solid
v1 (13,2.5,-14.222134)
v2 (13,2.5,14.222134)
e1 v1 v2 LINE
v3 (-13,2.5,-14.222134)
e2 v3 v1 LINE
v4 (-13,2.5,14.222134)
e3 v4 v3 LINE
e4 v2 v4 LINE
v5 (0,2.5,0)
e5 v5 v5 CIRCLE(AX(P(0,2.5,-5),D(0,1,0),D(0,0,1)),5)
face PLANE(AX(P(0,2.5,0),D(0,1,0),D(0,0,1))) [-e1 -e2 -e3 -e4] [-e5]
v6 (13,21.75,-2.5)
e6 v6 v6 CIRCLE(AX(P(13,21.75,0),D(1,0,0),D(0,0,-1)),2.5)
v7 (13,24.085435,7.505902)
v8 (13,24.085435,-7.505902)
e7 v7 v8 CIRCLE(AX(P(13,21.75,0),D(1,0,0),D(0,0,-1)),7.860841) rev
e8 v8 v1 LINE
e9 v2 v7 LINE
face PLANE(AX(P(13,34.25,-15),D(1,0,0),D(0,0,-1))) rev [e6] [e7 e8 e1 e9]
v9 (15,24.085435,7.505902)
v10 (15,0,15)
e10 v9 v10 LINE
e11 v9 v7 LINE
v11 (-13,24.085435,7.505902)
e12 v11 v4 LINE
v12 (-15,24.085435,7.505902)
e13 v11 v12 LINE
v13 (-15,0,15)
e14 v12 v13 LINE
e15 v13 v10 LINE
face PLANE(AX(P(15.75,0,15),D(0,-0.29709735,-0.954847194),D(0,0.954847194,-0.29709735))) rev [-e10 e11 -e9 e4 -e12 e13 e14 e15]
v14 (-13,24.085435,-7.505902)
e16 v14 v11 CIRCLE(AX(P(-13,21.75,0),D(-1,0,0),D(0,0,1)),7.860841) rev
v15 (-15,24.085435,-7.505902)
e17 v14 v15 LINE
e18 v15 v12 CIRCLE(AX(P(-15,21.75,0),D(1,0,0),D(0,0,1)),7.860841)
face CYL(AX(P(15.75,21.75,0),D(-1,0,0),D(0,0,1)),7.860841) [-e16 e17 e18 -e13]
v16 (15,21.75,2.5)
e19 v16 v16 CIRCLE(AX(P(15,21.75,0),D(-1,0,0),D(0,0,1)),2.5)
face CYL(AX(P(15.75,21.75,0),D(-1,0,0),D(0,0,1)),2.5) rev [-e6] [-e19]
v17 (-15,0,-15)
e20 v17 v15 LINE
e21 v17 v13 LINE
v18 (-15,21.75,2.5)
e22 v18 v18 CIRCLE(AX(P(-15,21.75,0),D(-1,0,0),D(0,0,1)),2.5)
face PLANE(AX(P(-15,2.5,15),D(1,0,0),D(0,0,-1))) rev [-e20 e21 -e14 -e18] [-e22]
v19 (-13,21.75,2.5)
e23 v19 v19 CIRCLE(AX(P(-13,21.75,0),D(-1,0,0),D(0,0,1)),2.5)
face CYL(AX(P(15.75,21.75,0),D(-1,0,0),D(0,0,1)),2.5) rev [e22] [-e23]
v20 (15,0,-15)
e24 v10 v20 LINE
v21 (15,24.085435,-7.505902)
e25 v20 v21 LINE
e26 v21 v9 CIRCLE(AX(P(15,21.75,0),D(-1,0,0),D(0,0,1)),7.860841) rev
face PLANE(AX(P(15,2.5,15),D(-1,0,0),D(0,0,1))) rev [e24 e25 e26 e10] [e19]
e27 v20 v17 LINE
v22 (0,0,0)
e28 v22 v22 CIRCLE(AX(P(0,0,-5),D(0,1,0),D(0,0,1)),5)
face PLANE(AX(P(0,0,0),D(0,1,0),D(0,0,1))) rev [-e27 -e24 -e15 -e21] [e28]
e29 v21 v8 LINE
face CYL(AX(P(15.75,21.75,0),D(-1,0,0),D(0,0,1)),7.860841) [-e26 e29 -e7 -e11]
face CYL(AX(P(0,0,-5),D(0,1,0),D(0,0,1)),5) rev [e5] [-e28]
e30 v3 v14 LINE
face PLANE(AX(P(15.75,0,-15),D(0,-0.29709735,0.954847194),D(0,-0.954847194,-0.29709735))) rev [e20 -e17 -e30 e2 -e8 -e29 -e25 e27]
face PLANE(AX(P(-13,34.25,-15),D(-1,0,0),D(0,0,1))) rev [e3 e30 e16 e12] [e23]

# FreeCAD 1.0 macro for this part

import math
import FreeCAD as App
import Part
import Sketcher
from FreeCAD import Vector

doc = App.newDocument("Part")
body = doc.addObject("PartDesign::Body", "Body")

# Sketch on XZ plane
sketch1 = body.newObject("Sketcher::SketchObject", "Sketch")
sketch1.AttachmentSupport = (doc.getObject("XZ_Plane"), [""])
sketch1.MapMode = "FlatFace"
sketch1.addGeometry(Part.LineSegment(Vector(-15, -15, 0), Vector(-15, 15, 0)), False)
sketch1.addGeometry(Part.LineSegment(Vector(-15, 15, 0), Vector(15, 15, 0)), False)
sketch1.addGeometry(Part.LineSegment(Vector(15, 15, 0), Vector(15, -15, 0)), False)
sketch1.addGeometry(Part.LineSegment(Vector(15, -15, 0), Vector(-15, -15, 0)), False)
sketch1.addConstraint(Sketcher.Constraint("Coincident", 0, 2, 1, 1))
sketch1.addConstraint(Sketcher.Constraint("Coincident", 1, 2, 2, 1))
sketch1.addConstraint(Sketcher.Constraint("Coincident", 2, 2, 3, 1))
sketch1.addConstraint(Sketcher.Constraint("Coincident", 3, 2, 0, 1))
sketch1.addConstraint(Sketcher.Constraint("Vertical", 0))
sketch1.addConstraint(Sketcher.Constraint("Horizontal", 1))
sketch1.addConstraint(Sketcher.Constraint("Vertical", 2))
sketch1.addConstraint(Sketcher.Constraint("Horizontal", 3))
sketch1.addConstraint(Sketcher.Constraint("Symmetric", 0, 2, 2, 2, -1, 1))
sketch1.addConstraint(Sketcher.Constraint("Equal", 3, 0))
sketch1.addConstraint(Sketcher.Constraint("DistanceX", 1, 1, 1, 2, 30.0))
pad1 = body.newObject("PartDesign::Pad", "Pad")
pad1.Profile = sketch1
pad1.Length = 2.5
pad1.Reversed = True

# Sketch on XZ plane
sketch2 = body.newObject("Sketcher::SketchObject", "Sketch001")
sketch2.AttachmentSupport = (doc.getObject("XZ_Plane"), [""])
sketch2.MapMode = "FlatFace"
sketch2.AttachmentOffset = App.Placement(Vector(0, 0, -2.5), App.Rotation())
sketch2.addGeometry(Part.Circle(Vector(0, -5, 0), Vector(0, 0, 1), 5), False)
sketch2.addConstraint(Sketcher.Constraint("PointOnObject", 0, 3, -2))
sketch2.addConstraint(Sketcher.Constraint("Diameter", 0, 10.0))
sketch2.addConstraint(Sketcher.Constraint("DistanceY", 0, 3, -1, 1, 5.0))
pocket1 = body.newObject("PartDesign::Pocket", "Pocket")
pocket1.Profile = sketch2
pocket1.Length = 2.5
pocket1.Reversed = True

# Sketch on XZ plane
sketch3 = body.newObject("Sketcher::SketchObject", "Sketch002")
sketch3.AttachmentSupport = (doc.getObject("XZ_Plane"), [""])
sketch3.MapMode = "FlatFace"
sketch3.AttachmentOffset = App.Placement(Vector(0, 0, -2.5), App.Rotation())
sketch3.addGeometry(Part.LineSegment(Vector(-15, -15, 0), Vector(-15, 15, 0)), False)
sketch3.addGeometry(Part.LineSegment(Vector(-15, 15, 0), Vector(-13, 15, 0)), False)
sketch3.addGeometry(Part.LineSegment(Vector(-13, 15, 0), Vector(-13, -15, 0)), False)
sketch3.addGeometry(Part.LineSegment(Vector(-13, -15, 0), Vector(-15, -15, 0)), False)
sketch3.addGeometry(Part.LineSegment(Vector(13, -15, 0), Vector(13, 15, 0)), False)
sketch3.addGeometry(Part.LineSegment(Vector(13, 15, 0), Vector(15, 15, 0)), False)
sketch3.addGeometry(Part.LineSegment(Vector(15, 15, 0), Vector(15, -15, 0)), False)
sketch3.addGeometry(Part.LineSegment(Vector(15, -15, 0), Vector(13, -15, 0)), False)
sketch3.addConstraint(Sketcher.Constraint("Coincident", 0, 2, 1, 1))
sketch3.addConstraint(Sketcher.Constraint("Coincident", 1, 2, 2, 1))
sketch3.addConstraint(Sketcher.Constraint("Coincident", 2, 2, 3, 1))
sketch3.addConstraint(Sketcher.Constraint("Coincident", 3, 2, 0, 1))
sketch3.addConstraint(Sketcher.Constraint("Coincident", 4, 2, 5, 1))
sketch3.addConstraint(Sketcher.Constraint("Coincident", 5, 2, 6, 1))
sketch3.addConstraint(Sketcher.Constraint("Coincident", 6, 2, 7, 1))
sketch3.addConstraint(Sketcher.Constraint("Coincident", 7, 2, 4, 1))
sketch3.addConstraint(Sketcher.Constraint("Vertical", 0))
sketch3.addConstraint(Sketcher.Constraint("Horizontal", 1))
sketch3.addConstraint(Sketcher.Constraint("Vertical", 2))
sketch3.addConstraint(Sketcher.Constraint("Horizontal", 3))
sketch3.addConstraint(Sketcher.Constraint("Vertical", 4))
sketch3.addConstraint(Sketcher.Constraint("Horizontal", 5))
sketch3.addConstraint(Sketcher.Constraint("Vertical", 6))
sketch3.addConstraint(Sketcher.Constraint("Horizontal", 7))
sketch3.addConstraint(Sketcher.Constraint("Symmetric", 2, 2, 4, 2, -1, 1))
sketch3.addConstraint(Sketcher.Constraint("Symmetric", 0, 2, 6, 2, -1, 1))
sketch3.addConstraint(Sketcher.Constraint("Horizontal", 1, 2, 4, 2))
sketch3.addConstraint(Sketcher.Constraint("DistanceX", 1, 1, 1, 2, 2.0))
sketch3.addConstraint(Sketcher.Constraint("DistanceY", 0, 1, 0, 2, 30.0))
sketch3.addConstraint(Sketcher.Constraint("DistanceX", 0, 2, -1, 1, 15.0))
pad2 = body.newObject("PartDesign::Pad", "Pad001")
pad2.Profile = sketch3
pad2.Length = 31.75
pad2.Reversed = True

# Sketch on YZ plane
sketch4 = body.newObject("Sketcher::SketchObject", "Sketch003")
sketch4.AttachmentSupport = (doc.getObject("YZ_Plane"), [""])
sketch4.MapMode = "FlatFace"
sketch4.AttachmentOffset = App.Placement(Vector(0, 0, -15), App.Rotation())
sketch4.addGeometry(Part.Circle(Vector(21.8, 0, 0), Vector(0, 0, 1), 2.5), False)
sketch4.addConstraint(Sketcher.Constraint("PointOnObject", 0, 3, -1))
sketch4.addConstraint(Sketcher.Constraint("Diameter", 0, 5.0))
sketch4.addConstraint(Sketcher.Constraint("DistanceX", -1, 1, 0, 3, 21.75))
pocket2 = body.newObject("PartDesign::Pocket", "Pocket001")
pocket2.Profile = sketch4
pocket2.Length = 30.75
pocket2.Reversed = True

# Sketch on YZ plane
sketch5 = body.newObject("Sketcher::SketchObject", "Sketch004")
sketch5.AttachmentSupport = (doc.getObject("YZ_Plane"), [""])
sketch5.MapMode = "FlatFace"
sketch5.AttachmentOffset = App.Placement(Vector(0, 0, -15), App.Rotation())
sketch5.addGeometry(Part.LineSegment(Vector(0, -15, 0), Vector(24, -8, 0)), False)
sketch5.addGeometry(Part.ArcOfCircle(Part.Circle(Vector(22, 0, 0), Vector(0, 0, 1), 8), math.radians(-73), math.radians(73)), False)
sketch5.addGeometry(Part.LineSegment(Vector(24, 8, 0), Vector(0, 15, 0)), False)
sketch5.addGeometry(Part.LineSegment(Vector(0, 15, 0), Vector(34, 15, 0)), False)
sketch5.addGeometry(Part.LineSegment(Vector(34, 15, 0), Vector(34, -15, 0)), False)
sketch5.addGeometry(Part.LineSegment(Vector(34, -15, 0), Vector(0, -15, 0)), False)
sketch5.addConstraint(Sketcher.Constraint("Tangent", 0, 2, 1, 1))
sketch5.addConstraint(Sketcher.Constraint("Tangent", 1, 2, 2, 1))
sketch5.addConstraint(Sketcher.Constraint("Coincident", 2, 2, 3, 1))
sketch5.addConstraint(Sketcher.Constraint("Coincident", 3, 2, 4, 1))
sketch5.addConstraint(Sketcher.Constraint("Coincident", 4, 2, 5, 1))
sketch5.addConstraint(Sketcher.Constraint("Coincident", 5, 2, 0, 1))
sketch5.addConstraint(Sketcher.Constraint("Horizontal", 3))
sketch5.addConstraint(Sketcher.Constraint("Vertical", 4))
sketch5.addConstraint(Sketcher.Constraint("Horizontal", 5))
sketch5.addConstraint(Sketcher.Constraint("Symmetric", 2, 2, 5, 2, -1, 1))
sketch5.addConstraint(Sketcher.Constraint("Symmetric", 0, 2, 1, 2, -1))
sketch5.addConstraint(Sketcher.Constraint("DistanceY", 4, 2, 4, 1, 30.0))
sketch5.addConstraint(Sketcher.Constraint("DistanceX", 3, 1, 3, 2, 34.25))
sketch5.addConstraint(Sketcher.Constraint("DistanceX", 1, 3, 3, 2, 12.5))
sketch5.addConstraint(Sketcher.Constraint("Radius", 1, 7.860841))
pocket3 = body.newObject("PartDesign::Pocket", "Pocket002")
pocket3.Profile = sketch5
pocket3.Length = 30.75
pocket3.Reversed = True

doc.recompute()
